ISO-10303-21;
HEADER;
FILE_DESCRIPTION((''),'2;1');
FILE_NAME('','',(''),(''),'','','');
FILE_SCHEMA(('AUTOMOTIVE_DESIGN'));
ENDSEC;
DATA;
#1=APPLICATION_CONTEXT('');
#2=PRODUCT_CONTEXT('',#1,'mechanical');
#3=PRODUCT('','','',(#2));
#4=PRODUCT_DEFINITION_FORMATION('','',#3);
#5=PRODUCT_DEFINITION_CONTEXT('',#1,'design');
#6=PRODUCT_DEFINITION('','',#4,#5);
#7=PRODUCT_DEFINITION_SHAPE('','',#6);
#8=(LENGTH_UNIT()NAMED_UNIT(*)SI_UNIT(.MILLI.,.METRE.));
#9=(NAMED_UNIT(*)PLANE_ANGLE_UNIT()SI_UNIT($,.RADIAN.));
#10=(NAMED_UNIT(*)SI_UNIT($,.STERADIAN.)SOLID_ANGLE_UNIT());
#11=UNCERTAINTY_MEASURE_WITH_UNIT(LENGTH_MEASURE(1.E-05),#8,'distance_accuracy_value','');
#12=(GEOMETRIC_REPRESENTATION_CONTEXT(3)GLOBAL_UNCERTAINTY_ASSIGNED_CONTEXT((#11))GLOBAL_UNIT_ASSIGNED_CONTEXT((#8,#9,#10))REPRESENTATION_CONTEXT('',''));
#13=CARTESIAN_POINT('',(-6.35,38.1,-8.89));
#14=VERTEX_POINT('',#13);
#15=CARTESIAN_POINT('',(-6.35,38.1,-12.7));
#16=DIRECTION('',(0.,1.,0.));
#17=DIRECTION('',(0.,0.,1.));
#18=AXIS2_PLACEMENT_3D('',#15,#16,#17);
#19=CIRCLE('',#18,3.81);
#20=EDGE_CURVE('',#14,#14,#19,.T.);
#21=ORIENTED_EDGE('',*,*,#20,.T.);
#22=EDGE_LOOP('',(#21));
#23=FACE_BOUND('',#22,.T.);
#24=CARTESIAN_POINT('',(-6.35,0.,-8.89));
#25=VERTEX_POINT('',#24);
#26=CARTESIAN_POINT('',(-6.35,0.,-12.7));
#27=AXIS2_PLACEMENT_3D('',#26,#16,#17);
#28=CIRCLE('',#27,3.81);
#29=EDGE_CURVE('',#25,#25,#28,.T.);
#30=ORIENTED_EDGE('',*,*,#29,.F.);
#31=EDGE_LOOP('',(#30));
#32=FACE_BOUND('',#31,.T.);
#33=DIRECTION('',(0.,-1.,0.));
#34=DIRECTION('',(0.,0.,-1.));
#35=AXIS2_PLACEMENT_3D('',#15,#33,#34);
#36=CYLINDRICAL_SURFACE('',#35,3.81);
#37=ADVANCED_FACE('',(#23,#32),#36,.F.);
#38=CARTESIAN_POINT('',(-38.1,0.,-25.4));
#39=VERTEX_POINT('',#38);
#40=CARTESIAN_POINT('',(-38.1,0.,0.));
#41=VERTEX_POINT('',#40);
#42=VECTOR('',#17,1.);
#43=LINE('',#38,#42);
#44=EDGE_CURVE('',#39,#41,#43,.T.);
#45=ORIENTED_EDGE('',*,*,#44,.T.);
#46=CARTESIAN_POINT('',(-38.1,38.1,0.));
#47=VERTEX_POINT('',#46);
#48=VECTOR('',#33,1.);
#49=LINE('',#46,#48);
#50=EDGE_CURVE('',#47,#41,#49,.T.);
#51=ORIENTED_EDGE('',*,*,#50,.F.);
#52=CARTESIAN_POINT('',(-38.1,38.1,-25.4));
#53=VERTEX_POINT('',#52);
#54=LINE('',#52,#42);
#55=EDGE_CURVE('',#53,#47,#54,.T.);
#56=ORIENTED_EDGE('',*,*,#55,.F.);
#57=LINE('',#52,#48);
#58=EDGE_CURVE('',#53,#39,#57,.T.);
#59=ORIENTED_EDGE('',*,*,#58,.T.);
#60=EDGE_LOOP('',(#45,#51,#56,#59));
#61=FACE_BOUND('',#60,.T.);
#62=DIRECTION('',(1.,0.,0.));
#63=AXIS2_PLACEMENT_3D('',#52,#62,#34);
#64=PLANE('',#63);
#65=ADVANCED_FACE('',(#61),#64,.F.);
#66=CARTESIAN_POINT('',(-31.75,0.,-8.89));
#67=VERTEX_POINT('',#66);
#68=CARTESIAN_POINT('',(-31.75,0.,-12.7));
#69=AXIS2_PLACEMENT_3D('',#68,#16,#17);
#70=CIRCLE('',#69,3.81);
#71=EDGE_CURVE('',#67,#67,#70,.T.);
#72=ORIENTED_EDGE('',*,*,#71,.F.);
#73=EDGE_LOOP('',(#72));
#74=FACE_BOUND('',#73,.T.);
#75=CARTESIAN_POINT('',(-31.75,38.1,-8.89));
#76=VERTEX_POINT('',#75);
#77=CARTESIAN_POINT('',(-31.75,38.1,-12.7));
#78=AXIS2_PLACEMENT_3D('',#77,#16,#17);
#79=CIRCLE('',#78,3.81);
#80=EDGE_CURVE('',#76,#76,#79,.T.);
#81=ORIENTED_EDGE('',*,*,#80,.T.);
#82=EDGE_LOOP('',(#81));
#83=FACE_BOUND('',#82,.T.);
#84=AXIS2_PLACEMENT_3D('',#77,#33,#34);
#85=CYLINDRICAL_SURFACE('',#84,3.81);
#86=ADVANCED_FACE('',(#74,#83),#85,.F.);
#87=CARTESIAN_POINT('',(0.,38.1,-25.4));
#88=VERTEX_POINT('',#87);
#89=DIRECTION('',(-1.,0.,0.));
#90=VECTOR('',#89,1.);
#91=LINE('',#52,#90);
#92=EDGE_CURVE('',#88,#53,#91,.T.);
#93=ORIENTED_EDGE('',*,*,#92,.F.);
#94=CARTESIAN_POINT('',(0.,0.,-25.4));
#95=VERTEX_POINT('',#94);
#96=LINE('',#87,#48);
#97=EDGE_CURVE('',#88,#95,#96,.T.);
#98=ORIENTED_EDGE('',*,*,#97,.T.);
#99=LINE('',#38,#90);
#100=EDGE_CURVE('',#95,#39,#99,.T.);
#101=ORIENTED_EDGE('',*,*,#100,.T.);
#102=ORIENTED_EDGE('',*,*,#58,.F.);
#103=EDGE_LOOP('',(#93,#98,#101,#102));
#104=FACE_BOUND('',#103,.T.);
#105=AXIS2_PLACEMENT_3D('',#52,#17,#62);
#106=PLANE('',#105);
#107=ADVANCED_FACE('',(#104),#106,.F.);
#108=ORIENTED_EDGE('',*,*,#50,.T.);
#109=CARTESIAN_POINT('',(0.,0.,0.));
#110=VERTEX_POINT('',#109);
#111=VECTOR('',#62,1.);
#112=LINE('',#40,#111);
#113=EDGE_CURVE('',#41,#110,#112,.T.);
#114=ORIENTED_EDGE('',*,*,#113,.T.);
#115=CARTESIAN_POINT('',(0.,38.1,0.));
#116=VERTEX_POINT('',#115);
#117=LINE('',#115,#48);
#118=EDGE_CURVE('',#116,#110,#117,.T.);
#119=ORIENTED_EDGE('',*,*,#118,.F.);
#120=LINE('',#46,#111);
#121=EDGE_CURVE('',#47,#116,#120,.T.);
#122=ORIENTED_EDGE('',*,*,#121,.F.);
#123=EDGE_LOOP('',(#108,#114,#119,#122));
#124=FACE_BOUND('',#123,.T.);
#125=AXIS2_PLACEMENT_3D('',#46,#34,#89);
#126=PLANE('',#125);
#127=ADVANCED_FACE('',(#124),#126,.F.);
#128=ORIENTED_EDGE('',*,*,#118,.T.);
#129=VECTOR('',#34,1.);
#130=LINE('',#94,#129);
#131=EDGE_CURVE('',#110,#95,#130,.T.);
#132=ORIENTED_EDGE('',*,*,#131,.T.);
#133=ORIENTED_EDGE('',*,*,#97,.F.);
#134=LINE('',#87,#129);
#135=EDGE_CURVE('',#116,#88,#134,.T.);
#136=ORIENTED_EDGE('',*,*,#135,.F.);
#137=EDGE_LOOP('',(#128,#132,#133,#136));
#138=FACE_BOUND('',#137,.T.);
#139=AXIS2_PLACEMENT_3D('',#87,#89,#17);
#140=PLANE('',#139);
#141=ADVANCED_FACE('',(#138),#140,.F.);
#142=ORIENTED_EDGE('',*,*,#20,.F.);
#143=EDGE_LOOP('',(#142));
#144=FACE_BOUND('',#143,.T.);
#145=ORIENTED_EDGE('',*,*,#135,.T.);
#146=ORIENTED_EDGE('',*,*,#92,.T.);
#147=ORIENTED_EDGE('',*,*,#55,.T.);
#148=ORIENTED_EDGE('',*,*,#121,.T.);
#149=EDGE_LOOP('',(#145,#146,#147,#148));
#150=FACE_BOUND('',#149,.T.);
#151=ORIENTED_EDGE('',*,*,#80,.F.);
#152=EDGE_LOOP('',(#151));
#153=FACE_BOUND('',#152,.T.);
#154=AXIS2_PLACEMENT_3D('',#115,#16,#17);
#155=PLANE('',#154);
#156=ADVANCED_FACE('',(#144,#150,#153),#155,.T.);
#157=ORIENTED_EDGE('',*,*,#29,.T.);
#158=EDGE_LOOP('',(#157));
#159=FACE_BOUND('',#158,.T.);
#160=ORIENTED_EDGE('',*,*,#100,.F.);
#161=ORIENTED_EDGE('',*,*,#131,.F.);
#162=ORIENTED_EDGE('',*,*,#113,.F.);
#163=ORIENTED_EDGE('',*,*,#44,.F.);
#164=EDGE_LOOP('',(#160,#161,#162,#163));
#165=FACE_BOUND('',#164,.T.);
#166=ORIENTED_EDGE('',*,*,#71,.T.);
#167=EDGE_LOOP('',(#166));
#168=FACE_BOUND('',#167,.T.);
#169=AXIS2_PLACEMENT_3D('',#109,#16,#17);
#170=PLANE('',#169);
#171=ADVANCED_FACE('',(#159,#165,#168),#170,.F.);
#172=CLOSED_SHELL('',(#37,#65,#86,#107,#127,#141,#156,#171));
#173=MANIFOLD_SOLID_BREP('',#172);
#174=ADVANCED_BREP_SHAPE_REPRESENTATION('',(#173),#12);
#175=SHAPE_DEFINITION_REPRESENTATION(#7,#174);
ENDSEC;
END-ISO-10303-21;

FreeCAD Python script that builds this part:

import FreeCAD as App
import Part
import Sketcher

V = App.Vector
Q = App.Units.Quantity

doc = App.newDocument("Part")
params = doc.addObject("Spreadsheet::Sheet", "Params")
for row, (alias, value) in enumerate([
    ("sketch1_diameter", "0.3 in"),
    ("sketch1_height", "1 in"),
    ("sketch1_width", "1.5 in"),
    ("pad1_length", "1.5 in"),
], start=1):
    params.set(f"A{row}", alias)
    params.set(f"B{row}", "=" + value)
    params.setAlias(f"B{row}", alias)

body = doc.addObject("PartDesign::Body", "Body")

# Sketch on XZ plane
sketch1 = body.newObject("Sketcher::SketchObject", "Sketch")
sketch1.AttachmentSupport = (doc.getObject("XZ_Plane"), [""])
sketch1.MapMode = "FlatFace"
sketch1.addGeometry([
    Part.LineSegment(V(-38.1, -25.4, 0), V(-38.1, 0, 0)),  # 0
    Part.LineSegment(V(-38.1, 0, 0), V(0, 0, 0)),  # 1
    Part.LineSegment(V(0, 0, 0), V(0, -25.4, 0)),  # 2
    Part.LineSegment(V(0, -25.4, 0), V(-38.1, -25.4, 0)),  # 3
    Part.Circle(V(-31.8, -12.7, 0), V(0, 0, 1), 3.8),  # 4
    Part.Circle(V(-6.3, -12.7, 0), V(0, 0, 1), 3.8),  # 5
], False)
sketch1.addConstraint([
    Sketcher.Constraint("Coincident", 0, 2, 1, 1),
    Sketcher.Constraint("Coincident", 1, 2, 2, 1),
    Sketcher.Constraint("Coincident", 2, 2, 3, 1),
    Sketcher.Constraint("Coincident", 3, 2, 0, 1),
    Sketcher.Constraint("Vertical", 0),
    Sketcher.Constraint("Horizontal", 1),
    Sketcher.Constraint("Vertical", 2),
    Sketcher.Constraint("Horizontal", 3),
    Sketcher.Constraint("Coincident", 1, 2, -1, 1),
    Sketcher.Constraint("Equal", 4, 5),
    Sketcher.Constraint("Horizontal", 4, 3, 5, 3),
    Sketcher.Constraint("Diameter", 4, Q("0.3 in")),
    Sketcher.Constraint("DistanceY", 0, 1, 0, 2, Q("1 in")),
    Sketcher.Constraint("DistanceX", 1, 1, 1, 2, Q("1.5 in")),
    Sketcher.Constraint("DistanceX", 4, 3, 5, 3, Q("1 in")),
    Sketcher.Constraint("DistanceY", 4, 3, -1, 1, Q("0.5 in")),
    Sketcher.Constraint("DistanceX", 4, 3, -1, 1, Q("1.25 in")),
])
sketch1.setExpression("Constraints[11]", "Params.sketch1_diameter")
sketch1.setExpression("Constraints[12]", "Params.sketch1_height")
sketch1.setExpression("Constraints[13]", "Params.sketch1_width")
pad1 = body.newObject("PartDesign::Pad", "Pad")
pad1.Profile = sketch1
pad1.setExpression("Length", "Params.pad1_length")
pad1.Reversed = True

doc.recompute()
